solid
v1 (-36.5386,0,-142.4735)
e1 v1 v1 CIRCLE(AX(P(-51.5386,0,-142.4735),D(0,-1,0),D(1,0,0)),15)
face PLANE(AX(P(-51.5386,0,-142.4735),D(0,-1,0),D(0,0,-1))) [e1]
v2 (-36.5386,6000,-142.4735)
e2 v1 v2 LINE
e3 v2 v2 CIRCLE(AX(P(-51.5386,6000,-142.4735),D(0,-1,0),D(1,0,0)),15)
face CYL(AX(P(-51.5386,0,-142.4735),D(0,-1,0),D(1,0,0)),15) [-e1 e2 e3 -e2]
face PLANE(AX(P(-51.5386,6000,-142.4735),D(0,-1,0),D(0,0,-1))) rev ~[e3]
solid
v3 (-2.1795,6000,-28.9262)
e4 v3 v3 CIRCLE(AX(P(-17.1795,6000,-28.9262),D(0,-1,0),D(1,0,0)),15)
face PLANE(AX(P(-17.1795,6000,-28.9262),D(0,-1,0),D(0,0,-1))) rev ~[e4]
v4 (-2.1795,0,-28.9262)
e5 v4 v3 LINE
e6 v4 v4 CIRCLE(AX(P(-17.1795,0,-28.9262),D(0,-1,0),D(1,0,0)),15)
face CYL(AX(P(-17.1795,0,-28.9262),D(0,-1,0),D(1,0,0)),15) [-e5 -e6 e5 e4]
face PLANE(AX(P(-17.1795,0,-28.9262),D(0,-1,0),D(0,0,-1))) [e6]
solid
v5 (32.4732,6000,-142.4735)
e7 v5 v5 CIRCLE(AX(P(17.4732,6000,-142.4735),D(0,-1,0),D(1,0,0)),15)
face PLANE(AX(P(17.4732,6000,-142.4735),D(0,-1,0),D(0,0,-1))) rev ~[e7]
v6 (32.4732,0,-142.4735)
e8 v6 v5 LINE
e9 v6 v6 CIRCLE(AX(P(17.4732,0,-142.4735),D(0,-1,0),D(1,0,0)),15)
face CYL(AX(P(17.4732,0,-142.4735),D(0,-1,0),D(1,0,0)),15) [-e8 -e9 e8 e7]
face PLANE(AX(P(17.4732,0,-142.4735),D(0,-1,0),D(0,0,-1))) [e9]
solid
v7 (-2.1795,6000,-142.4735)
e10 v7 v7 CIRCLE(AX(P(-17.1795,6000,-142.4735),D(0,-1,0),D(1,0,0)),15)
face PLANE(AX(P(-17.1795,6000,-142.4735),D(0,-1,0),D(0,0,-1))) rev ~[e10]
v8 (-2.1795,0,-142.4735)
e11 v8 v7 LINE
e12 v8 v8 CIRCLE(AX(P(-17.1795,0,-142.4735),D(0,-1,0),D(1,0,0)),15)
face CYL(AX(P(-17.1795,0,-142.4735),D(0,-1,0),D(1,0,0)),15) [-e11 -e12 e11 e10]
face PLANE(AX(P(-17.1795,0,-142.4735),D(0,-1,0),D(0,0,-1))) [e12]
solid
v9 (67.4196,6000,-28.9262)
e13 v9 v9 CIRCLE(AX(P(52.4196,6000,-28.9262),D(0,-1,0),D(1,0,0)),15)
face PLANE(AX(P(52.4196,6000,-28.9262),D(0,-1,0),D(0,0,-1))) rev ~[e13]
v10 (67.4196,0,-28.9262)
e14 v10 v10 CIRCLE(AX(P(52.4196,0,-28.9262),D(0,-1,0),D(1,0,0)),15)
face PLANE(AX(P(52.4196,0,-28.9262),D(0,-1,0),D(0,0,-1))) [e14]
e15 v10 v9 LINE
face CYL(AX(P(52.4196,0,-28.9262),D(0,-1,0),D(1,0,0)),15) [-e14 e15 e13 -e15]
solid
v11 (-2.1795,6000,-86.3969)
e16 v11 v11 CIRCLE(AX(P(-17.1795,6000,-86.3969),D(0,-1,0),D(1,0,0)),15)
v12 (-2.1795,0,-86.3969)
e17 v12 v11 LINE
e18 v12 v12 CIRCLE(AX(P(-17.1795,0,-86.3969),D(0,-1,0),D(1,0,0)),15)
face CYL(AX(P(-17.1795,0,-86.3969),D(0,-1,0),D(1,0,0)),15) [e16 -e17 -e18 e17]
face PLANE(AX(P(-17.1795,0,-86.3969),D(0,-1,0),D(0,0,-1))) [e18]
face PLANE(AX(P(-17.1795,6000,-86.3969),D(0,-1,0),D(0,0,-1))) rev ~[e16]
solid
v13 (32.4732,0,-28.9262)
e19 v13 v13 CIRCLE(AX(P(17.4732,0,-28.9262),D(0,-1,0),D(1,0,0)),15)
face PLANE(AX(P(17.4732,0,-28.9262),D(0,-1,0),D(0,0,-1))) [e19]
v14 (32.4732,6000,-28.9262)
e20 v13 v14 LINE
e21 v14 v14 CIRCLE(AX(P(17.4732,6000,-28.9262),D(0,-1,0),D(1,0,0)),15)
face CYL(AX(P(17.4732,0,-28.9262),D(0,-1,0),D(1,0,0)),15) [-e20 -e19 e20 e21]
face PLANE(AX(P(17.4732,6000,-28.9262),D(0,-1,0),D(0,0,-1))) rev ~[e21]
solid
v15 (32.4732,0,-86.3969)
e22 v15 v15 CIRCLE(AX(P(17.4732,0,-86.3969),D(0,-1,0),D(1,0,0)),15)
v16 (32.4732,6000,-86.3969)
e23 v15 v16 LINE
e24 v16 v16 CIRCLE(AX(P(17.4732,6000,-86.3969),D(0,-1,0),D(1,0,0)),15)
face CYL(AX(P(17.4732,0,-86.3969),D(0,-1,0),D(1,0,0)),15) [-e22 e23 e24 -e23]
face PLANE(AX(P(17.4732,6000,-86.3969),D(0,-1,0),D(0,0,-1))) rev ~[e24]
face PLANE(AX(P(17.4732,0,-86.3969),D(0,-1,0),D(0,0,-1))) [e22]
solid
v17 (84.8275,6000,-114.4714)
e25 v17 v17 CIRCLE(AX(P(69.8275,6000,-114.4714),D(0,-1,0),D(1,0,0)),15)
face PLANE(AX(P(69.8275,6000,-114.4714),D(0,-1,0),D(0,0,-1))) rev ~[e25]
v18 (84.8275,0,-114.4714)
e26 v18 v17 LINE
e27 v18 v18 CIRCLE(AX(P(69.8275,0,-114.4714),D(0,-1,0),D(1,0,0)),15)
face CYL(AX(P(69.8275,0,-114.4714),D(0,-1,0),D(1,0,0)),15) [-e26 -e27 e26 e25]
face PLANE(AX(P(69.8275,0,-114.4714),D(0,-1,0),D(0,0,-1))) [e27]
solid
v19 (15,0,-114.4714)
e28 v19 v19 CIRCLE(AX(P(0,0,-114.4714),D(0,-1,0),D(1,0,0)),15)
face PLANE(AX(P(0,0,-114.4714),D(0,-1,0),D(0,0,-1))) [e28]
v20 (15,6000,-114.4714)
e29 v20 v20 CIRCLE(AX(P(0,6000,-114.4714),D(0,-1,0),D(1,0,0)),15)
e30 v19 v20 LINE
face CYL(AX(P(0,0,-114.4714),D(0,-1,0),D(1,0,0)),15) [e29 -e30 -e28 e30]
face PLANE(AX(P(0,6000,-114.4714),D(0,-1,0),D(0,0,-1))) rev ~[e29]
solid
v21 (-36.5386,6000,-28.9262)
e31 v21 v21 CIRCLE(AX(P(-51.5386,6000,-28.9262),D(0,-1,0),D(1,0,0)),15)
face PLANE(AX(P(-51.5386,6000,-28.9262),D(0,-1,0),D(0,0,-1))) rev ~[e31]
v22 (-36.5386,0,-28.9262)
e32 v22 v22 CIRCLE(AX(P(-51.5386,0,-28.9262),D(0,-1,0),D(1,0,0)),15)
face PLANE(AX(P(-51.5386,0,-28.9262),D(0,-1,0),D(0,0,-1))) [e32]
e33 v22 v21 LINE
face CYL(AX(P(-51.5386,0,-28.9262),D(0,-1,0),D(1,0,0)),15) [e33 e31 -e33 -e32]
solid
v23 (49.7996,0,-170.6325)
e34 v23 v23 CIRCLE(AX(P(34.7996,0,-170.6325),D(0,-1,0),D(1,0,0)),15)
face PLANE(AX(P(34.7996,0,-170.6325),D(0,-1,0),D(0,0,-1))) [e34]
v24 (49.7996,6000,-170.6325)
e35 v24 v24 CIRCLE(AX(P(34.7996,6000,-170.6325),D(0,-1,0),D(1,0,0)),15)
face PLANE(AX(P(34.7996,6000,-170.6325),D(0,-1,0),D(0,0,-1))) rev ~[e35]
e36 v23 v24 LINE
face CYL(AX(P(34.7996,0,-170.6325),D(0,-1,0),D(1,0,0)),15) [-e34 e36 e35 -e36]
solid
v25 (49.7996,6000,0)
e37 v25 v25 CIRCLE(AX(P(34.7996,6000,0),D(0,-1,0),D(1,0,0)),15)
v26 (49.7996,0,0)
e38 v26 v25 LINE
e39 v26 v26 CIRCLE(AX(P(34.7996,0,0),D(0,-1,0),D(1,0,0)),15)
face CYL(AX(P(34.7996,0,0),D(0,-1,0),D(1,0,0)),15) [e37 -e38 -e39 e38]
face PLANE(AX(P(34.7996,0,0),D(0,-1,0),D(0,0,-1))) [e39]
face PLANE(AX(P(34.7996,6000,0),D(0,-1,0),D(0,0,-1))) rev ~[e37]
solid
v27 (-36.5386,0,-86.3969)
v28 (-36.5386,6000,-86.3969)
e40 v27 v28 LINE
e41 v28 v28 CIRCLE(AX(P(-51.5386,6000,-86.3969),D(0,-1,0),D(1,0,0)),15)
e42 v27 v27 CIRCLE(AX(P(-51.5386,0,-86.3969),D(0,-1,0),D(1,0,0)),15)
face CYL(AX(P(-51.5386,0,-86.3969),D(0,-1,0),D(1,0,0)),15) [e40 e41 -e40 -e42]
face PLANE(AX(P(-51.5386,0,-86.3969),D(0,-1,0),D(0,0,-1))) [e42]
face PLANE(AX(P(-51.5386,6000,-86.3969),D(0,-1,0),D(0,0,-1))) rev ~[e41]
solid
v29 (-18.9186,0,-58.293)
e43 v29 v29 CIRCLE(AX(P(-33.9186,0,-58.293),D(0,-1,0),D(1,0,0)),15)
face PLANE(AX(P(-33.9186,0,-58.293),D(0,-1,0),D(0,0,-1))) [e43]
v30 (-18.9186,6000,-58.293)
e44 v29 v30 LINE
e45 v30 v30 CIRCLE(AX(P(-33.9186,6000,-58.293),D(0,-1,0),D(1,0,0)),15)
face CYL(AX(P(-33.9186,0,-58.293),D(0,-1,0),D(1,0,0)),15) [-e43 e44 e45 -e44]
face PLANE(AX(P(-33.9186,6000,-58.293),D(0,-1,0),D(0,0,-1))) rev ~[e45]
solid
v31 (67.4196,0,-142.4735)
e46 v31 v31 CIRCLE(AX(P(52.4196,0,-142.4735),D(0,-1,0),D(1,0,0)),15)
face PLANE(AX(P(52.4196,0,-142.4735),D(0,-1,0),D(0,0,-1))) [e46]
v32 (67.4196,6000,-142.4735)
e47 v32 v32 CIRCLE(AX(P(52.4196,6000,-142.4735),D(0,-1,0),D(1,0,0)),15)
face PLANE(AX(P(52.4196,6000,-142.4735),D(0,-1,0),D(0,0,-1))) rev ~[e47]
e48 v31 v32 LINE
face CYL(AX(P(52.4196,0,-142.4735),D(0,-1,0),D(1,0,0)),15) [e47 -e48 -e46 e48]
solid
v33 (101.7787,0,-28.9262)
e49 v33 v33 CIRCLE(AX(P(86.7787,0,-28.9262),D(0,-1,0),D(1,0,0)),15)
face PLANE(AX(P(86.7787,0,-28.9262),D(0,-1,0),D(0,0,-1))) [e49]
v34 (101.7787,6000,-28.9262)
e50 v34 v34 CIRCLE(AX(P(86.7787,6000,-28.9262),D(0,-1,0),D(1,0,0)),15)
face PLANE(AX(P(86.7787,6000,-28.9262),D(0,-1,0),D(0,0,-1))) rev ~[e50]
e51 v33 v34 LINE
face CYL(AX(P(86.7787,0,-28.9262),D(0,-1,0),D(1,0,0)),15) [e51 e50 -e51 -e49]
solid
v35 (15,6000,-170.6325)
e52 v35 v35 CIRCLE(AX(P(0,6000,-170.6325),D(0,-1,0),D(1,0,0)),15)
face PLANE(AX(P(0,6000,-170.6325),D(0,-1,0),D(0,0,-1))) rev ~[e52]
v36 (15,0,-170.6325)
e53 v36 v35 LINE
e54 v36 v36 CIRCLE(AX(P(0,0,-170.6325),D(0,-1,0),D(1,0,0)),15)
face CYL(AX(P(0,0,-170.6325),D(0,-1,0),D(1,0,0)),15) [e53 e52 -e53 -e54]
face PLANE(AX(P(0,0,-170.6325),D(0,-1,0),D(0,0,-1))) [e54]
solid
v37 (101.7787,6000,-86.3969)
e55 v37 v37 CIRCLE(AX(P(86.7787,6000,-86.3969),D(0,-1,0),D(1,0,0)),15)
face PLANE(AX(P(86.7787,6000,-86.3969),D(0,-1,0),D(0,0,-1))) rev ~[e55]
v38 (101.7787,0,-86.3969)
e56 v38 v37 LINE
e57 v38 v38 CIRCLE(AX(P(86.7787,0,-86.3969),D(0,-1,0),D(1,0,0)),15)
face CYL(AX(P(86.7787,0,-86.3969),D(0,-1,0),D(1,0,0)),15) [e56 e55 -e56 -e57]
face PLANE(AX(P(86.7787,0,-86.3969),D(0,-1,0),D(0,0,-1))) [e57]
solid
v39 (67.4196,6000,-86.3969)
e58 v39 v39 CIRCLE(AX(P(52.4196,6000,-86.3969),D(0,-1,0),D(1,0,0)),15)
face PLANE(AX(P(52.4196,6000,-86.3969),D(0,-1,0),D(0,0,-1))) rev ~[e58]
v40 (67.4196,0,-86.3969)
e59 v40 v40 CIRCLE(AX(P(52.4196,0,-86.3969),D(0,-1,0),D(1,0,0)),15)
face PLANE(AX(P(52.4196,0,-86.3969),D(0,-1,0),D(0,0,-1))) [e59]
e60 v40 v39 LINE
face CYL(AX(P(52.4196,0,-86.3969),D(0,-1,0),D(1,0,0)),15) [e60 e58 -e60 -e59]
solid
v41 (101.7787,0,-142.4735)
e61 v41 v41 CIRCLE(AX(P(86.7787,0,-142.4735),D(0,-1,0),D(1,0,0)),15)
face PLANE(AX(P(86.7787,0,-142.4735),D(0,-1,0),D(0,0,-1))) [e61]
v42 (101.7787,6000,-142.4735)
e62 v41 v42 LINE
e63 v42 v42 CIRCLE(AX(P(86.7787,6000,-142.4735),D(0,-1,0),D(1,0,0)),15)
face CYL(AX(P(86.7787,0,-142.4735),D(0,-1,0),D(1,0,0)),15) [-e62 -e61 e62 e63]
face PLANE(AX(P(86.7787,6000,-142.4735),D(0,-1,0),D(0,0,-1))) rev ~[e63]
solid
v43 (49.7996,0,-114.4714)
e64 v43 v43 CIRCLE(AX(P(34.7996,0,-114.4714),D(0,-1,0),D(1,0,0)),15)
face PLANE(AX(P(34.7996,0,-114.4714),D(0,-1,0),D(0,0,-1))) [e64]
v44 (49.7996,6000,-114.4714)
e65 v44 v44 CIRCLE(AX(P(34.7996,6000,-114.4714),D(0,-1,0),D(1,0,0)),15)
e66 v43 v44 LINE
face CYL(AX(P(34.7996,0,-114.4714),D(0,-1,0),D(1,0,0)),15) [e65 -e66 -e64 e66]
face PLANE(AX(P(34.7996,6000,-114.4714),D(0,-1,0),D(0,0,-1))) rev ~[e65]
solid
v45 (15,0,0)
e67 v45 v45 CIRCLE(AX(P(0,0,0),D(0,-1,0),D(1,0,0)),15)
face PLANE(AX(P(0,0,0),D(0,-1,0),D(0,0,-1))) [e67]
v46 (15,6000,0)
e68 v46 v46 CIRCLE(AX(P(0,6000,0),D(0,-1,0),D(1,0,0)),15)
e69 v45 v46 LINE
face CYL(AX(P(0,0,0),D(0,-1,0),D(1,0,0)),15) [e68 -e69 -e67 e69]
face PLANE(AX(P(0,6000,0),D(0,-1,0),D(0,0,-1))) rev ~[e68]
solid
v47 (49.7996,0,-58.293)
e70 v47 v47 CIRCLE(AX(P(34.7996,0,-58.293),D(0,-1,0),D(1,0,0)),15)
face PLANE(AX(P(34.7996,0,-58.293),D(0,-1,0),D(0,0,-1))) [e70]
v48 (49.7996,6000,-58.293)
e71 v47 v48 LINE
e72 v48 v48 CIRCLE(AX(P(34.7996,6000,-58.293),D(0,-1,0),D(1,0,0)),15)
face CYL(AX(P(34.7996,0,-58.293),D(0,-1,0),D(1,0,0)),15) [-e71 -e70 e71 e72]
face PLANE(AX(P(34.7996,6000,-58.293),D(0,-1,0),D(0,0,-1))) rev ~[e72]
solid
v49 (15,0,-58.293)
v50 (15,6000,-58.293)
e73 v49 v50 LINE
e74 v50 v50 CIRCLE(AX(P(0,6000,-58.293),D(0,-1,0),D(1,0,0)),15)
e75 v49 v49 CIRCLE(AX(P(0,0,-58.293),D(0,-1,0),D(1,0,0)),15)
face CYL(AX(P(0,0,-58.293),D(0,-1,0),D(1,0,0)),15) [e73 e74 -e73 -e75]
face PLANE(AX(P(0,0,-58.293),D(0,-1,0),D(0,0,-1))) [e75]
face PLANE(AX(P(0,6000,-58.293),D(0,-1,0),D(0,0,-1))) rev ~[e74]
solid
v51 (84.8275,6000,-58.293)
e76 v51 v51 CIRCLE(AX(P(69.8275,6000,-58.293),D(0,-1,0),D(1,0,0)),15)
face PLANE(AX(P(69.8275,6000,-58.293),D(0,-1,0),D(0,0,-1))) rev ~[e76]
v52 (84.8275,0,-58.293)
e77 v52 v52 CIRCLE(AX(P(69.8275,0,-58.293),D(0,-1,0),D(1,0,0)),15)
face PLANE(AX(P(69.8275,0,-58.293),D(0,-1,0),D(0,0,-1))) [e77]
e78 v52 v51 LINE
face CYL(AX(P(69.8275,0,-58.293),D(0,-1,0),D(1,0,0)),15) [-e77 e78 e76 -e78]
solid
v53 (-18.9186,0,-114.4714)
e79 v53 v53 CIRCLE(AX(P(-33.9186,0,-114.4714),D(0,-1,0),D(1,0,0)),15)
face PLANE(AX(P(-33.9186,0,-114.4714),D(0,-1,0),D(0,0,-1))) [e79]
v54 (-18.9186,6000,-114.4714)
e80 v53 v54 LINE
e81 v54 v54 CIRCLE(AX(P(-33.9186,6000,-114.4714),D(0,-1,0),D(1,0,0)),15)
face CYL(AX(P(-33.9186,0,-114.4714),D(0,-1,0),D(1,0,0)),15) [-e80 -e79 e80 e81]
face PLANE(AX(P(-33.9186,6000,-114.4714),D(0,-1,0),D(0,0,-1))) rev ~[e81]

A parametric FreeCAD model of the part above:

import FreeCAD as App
import Part
import Sketcher
from FreeCAD import Vector
Q = App.Units.Quantity

doc = App.newDocument("Part")
body = doc.addObject("PartDesign::Body", "Body")
body.AllowCompound = True

# Sketch on XZ plane
sketch1 = doc.addObject("Sketcher::SketchObject", "Sketch")
body.addObject(sketch1)
sketch1.AttachmentSupport = (doc.XZ_Plane, [""])
sketch1.MapMode = "FlatFace"
sketch1.addGeometry(Part.Circle(Vector(0, 0, 0), Vector(0, 0, 1), 15), False)
sketch1.addGeometry(Part.Circle(Vector(-52, -29, 0), Vector(0, 0, 1), 15), False)
sketch1.addGeometry(Part.Circle(Vector(-17, -29, 0), Vector(0, 0, 1), 15), False)
sketch1.addGeometry(Part.Circle(Vector(17, -29, 0), Vector(0, 0, 1), 15), False)
sketch1.addGeometry(Part.Circle(Vector(35, 0, 0), Vector(0, 0, 1), 15), False)
sketch1.addGeometry(Part.Circle(Vector(52, -29, 0), Vector(0, 0, 1), 15), False)
sketch1.addGeometry(Part.Circle(Vector(87, -29, 0), Vector(0, 0, 1), 15), False)
sketch1.addGeometry(Part.Circle(Vector(70, -58, 0), Vector(0, 0, 1), 15), False)
sketch1.addGeometry(Part.Circle(Vector(35, -58, 0), Vector(0, 0, 1), 15), False)
sketch1.addGeometry(Part.Circle(Vector(0, -58, 0), Vector(0, 0, 1), 15), False)
sketch1.addGeometry(Part.Circle(Vector(-34, -58, 0), Vector(0, 0, 1), 15), False)
sketch1.addGeometry(Part.Circle(Vector(-52, -86, 0), Vector(0, 0, 1), 15), False)
sketch1.addGeometry(Part.Circle(Vector(-17, -86, 0), Vector(0, 0, 1), 15), False)
sketch1.addGeometry(Part.Circle(Vector(17, -86, 0), Vector(0, 0, 1), 15), False)
sketch1.addGeometry(Part.Circle(Vector(52, -86, 0), Vector(0, 0, 1), 15), False)
sketch1.addGeometry(Part.Circle(Vector(87, -86, 0), Vector(0, 0, 1), 15), False)
sketch1.addGeometry(Part.Circle(Vector(70, -114, 0), Vector(0, 0, 1), 15), False)
sketch1.addGeometry(Part.Circle(Vector(35, -114, 0), Vector(0, 0, 1), 15), False)
sketch1.addGeometry(Part.Circle(Vector(0, -114, 0), Vector(0, 0, 1), 15), False)
sketch1.addGeometry(Part.Circle(Vector(-34, -114, 0), Vector(0, 0, 1), 15), False)
sketch1.addGeometry(Part.Circle(Vector(-52, -142, 0), Vector(0, 0, 1), 15), False)
sketch1.addGeometry(Part.Circle(Vector(-17, -142, 0), Vector(0, 0, 1), 15), False)
sketch1.addGeometry(Part.Circle(Vector(17, -142, 0), Vector(0, 0, 1), 15), False)
sketch1.addGeometry(Part.Circle(Vector(52, -142, 0), Vector(0, 0, 1), 15), False)
sketch1.addGeometry(Part.Circle(Vector(87, -142, 0), Vector(0, 0, 1), 15), False)
sketch1.addGeometry(Part.Circle(Vector(35, -171, 0), Vector(0, 0, 1), 15), False)
sketch1.addGeometry(Part.Circle(Vector(0, -171, 0), Vector(0, 0, 1), 15), False)
sketch1.addConstraint(Sketcher.Constraint("Coincident", 0, 3, -1, 1))
sketch1.addConstraint(Sketcher.Constraint("Equal", 0, 1))
sketch1.addConstraint(Sketcher.Constraint("Equal", 1, 2))
sketch1.addConstraint(Sketcher.Constraint("Equal", 2, 3))
sketch1.addConstraint(Sketcher.Constraint("Equal", 3, 4))
sketch1.addConstraint(Sketcher.Constraint("Equal", 4, 5))
sketch1.addConstraint(Sketcher.Constraint("Equal", 5, 6))
sketch1.addConstraint(Sketcher.Constraint("Equal", 6, 7))
sketch1.addConstraint(Sketcher.Constraint("Equal", 7, 8))
sketch1.addConstraint(Sketcher.Constraint("Equal", 8, 9))
sketch1.addConstraint(Sketcher.Constraint("Equal", 9, 10))
sketch1.addConstraint(Sketcher.Constraint("Equal", 10, 11))
sketch1.addConstraint(Sketcher.Constraint("Equal", 11, 12))
sketch1.addConstraint(Sketcher.Constraint("Equal", 12, 13))
sketch1.addConstraint(Sketcher.Constraint("Equal", 13, 14))
sketch1.addConstraint(Sketcher.Constraint("Equal", 14, 15))
sketch1.addConstraint(Sketcher.Constraint("Equal", 15, 16))
sketch1.addConstraint(Sketcher.Constraint("Equal", 16, 17))
sketch1.addConstraint(Sketcher.Constraint("Equal", 17, 18))
sketch1.addConstraint(Sketcher.Constraint("Equal", 18, 19))
sketch1.addConstraint(Sketcher.Constraint("Equal", 19, 20))
sketch1.addConstraint(Sketcher.Constraint("Equal", 20, 21))
sketch1.addConstraint(Sketcher.Constraint("Equal", 21, 22))
sketch1.addConstraint(Sketcher.Constraint("Equal", 22, 23))
sketch1.addConstraint(Sketcher.Constraint("Equal", 23, 24))
sketch1.addConstraint(Sketcher.Constraint("Equal", 24, 25))
sketch1.addConstraint(Sketcher.Constraint("Equal", 25, 26))
sketch1.addConstraint(Sketcher.Constraint("PointOnObject", 4, 3, -1))
sketch1.addConstraint(Sketcher.Constraint("PointOnObject", 9, 3, -2))
sketch1.addConstraint(Sketcher.Constraint("PointOnObject", 18, 3, -2))
sketch1.addConstraint(Sketcher.Constraint("PointOnObject", 26, 3, -2))
sketch1.addConstraint(Sketcher.Constraint("Horizontal", 1, 3, 2, 3))
sketch1.addConstraint(Sketcher.Constraint("Horizontal", 2, 3, 3, 3))
sketch1.addConstraint(Sketcher.Constraint("Horizontal", 3, 3, 5, 3))
sketch1.addConstraint(Sketcher.Constraint("Horizontal", 5, 3, 6, 3))
sketch1.addConstraint(Sketcher.Constraint("Horizontal", 7, 3, 8, 3))
sketch1.addConstraint(Sketcher.Constraint("Horizontal", 8, 3, 9, 3))
sketch1.addConstraint(Sketcher.Constraint("Horizontal", 9, 3, 10, 3))
sketch1.addConstraint(Sketcher.Constraint("Horizontal", 11, 3, 12, 3))
sketch1.addConstraint(Sketcher.Constraint("Horizontal", 12, 3, 13, 3))
sketch1.addConstraint(Sketcher.Constraint("Horizontal", 13, 3, 14, 3))
sketch1.addConstraint(Sketcher.Constraint("Horizontal", 14, 3, 15, 3))
sketch1.addConstraint(Sketcher.Constraint("Horizontal", 16, 3, 17, 3))
sketch1.addConstraint(Sketcher.Constraint("Horizontal", 17, 3, 18, 3))
sketch1.addConstraint(Sketcher.Constraint("Horizontal", 18, 3, 19, 3))
sketch1.addConstraint(Sketcher.Constraint("Horizontal", 20, 3, 21, 3))
sketch1.addConstraint(Sketcher.Constraint("Horizontal", 21, 3, 22, 3))
sketch1.addConstraint(Sketcher.Constraint("Horizontal", 22, 3, 23, 3))
sketch1.addConstraint(Sketcher.Constraint("Horizontal", 23, 3, 24, 3))
sketch1.addConstraint(Sketcher.Constraint("Horizontal", 25, 3, 26, 3))
sketch1.addConstraint(Sketcher.Constraint("Vertical", 4, 3, 8, 3))
sketch1.addConstraint(Sketcher.Constraint("Vertical", 1, 3, 11, 3))
sketch1.addConstraint(Sketcher.Constraint("Vertical", 2, 3, 12, 3))
sketch1.addConstraint(Sketcher.Constraint("Vertical", 3, 3, 13, 3))
sketch1.addConstraint(Sketcher.Constraint("Vertical", 5, 3, 14, 3))
sketch1.addConstraint(Sketcher.Constraint("Vertical", 6, 3, 15, 3))
sketch1.addConstraint(Sketcher.Constraint("Vertical", 7, 3, 16, 3))
sketch1.addConstraint(Sketcher.Constraint("Vertical", 8, 3, 17, 3))
sketch1.addConstraint(Sketcher.Constraint("Vertical", 10, 3, 19, 3))
sketch1.addConstraint(Sketcher.Constraint("Vertical", 11, 3, 20, 3))
sketch1.addConstraint(Sketcher.Constraint("Vertical", 12, 3, 21, 3))
sketch1.addConstraint(Sketcher.Constraint("Vertical", 13, 3, 22, 3))
sketch1.addConstraint(Sketcher.Constraint("Vertical", 14, 3, 23, 3))
sketch1.addConstraint(Sketcher.Constraint("Vertical", 15, 3, 24, 3))
sketch1.addConstraint(Sketcher.Constraint("Vertical", 17, 3, 25, 3))
sketch1.addConstraint(Sketcher.Constraint("Diameter", 0, Q("30 mm")))
sketch1.addConstraint(Sketcher.Constraint("DistanceX", 4, 3, 5, 3, Q("17.62 mm")))
sketch1.addConstraint(Sketcher.Constraint("DistanceX", 1, 3, 10, 3, Q("17.62 mm")))
sketch1.addConstraint(Sketcher.Constraint("DistanceY", 7, 3, -1, 1, Q("58.293 mm")))
sketch1.addConstraint(Sketcher.Constraint("DistanceY", 11, 3, -1, 1, Q("86.397 mm")))
sketch1.addConstraint(Sketcher.Constraint("DistanceX", 1, 3, 2, 3, Q("34.359 mm")))
sketch1.addConstraint(Sketcher.Constraint("DistanceX", 2, 3, 4, 3, Q("51.979 mm")))
sketch1.addConstraint(Sketcher.Constraint("DistanceX", 5, 3, 6, 3, Q("34.359 mm")))
sketch1.addConstraint(Sketcher.Constraint("DistanceX", 5, 3, 7, 3, Q("17.408 mm")))
sketch1.addConstraint(Sketcher.Constraint("DistanceY", 20, 3, 19, 3, Q("28.002 mm")))
sketch1.addConstraint(Sketcher.Constraint("DistanceY", 25, 3, 22, 3, Q("28.159 mm")))
sketch1.addConstraint(Sketcher.Constraint("DistanceX", 1, 3, -1, 1, Q("51.5386 mm")))
sketch1.addConstraint(Sketcher.Constraint("DistanceY", 1, 3, -1, 1, Q("28.9262 mm")))
sketch1.addConstraint(Sketcher.Constraint("DistanceX", -1, 1, 3, 3, Q("17.4732 mm")))
sketch1.addConstraint(Sketcher.Constraint("DistanceY", 16, 3, -1, 1, Q("114.4714 mm")))
pad1 = doc.addObject("PartDesign::Pad", "Pad")
body.addObject(pad1)
pad1.Profile = sketch1
pad1.Length = 6000
pad1.Reversed = True

doc.recompute()
